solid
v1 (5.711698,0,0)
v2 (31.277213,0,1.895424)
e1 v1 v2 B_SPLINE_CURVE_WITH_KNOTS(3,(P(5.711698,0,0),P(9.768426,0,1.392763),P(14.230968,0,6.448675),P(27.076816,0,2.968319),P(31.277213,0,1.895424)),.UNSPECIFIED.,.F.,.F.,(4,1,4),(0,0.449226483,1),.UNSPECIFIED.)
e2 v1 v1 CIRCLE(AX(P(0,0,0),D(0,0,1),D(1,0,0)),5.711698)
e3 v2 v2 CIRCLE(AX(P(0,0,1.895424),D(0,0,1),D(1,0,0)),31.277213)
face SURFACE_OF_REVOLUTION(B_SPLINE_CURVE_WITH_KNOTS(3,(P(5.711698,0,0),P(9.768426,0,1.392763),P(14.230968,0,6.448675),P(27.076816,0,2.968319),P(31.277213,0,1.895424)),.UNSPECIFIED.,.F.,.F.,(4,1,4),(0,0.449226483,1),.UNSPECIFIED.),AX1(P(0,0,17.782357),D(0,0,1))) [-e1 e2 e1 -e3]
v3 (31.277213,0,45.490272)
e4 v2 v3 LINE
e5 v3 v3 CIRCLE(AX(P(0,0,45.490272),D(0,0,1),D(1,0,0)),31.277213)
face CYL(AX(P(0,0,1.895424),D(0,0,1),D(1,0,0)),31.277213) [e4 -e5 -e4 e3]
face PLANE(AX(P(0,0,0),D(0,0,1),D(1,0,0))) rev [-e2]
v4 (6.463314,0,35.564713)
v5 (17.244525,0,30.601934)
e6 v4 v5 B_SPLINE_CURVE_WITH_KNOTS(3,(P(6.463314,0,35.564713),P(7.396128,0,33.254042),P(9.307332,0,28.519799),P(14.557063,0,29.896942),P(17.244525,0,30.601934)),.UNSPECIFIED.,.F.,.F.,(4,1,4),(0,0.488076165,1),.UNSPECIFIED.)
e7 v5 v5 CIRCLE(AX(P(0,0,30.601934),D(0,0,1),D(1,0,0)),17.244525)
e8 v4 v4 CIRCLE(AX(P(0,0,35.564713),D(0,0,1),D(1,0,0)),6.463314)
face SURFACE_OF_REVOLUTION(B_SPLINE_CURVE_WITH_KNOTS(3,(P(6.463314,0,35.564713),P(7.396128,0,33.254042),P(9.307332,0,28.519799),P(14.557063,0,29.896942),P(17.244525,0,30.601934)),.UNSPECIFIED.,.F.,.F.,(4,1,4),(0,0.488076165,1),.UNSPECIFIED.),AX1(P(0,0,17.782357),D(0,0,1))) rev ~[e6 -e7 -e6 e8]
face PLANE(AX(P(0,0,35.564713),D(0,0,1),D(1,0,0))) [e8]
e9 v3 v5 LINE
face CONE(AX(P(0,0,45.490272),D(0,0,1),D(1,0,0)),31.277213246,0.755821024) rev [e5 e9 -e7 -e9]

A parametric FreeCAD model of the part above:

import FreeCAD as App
import Part
import Sketcher

doc = App.newDocument("Part")
body = doc.addObject("PartDesign::Body", "Body")

# Sketch on XZ plane
sketch1 = doc.addObject("Sketcher::SketchObject", "Sketch")
body.addObject(sketch1)
sketch1.AttachmentSupport = (doc.XZ_Plane, [""])
sketch1.MapMode = "FlatFace"
sketch1.addGeometry([
    Part.LineSegment(App.Vector(0, 35.564713, 0), App.Vector(0, 0, 0)),  # 0
    Part.LineSegment(App.Vector(0, 0, 0), App.Vector(5.711698, 0, 0)),  # 1
    Part.BSplineCurve([App.Vector(5.711698, 0, 0), App.Vector(9.768426, 1.392763, 0), App.Vector(14.230968, 6.448675, 0), App.Vector(27.076816, 2.968319, 0), App.Vector(31.277213, 1.895424, 0)], [4, 1, 4], [0, 0.449226483, 1], False, 3, [1, 1, 1, 1, 1], False),  # 2
    Part.LineSegment(App.Vector(31.277213, 1.895424, 0), App.Vector(31.277213, 45.490272, 0)),  # 3
    Part.LineSegment(App.Vector(31.277213, 45.490272, 0), App.Vector(17.244525, 30.601934, 0)),  # 4
    Part.BSplineCurve([App.Vector(6.463314, 35.564713, 0), App.Vector(7.396128, 33.254042, 0), App.Vector(9.307332, 28.519799, 0), App.Vector(14.557063, 29.896942, 0), App.Vector(17.244525, 30.601934, 0)], [4, 1, 4], [0, 0.488076165, 1], False, 3, [1, 1, 1, 1, 1], False),  # 5
    Part.LineSegment(App.Vector(6.463314, 35.564713, 0), App.Vector(0, 35.564713, 0)),  # 6
], False)
sketch1.addConstraint([
    Sketcher.Constraint("Block", 2),
    Sketcher.Constraint("Block", 5),
    Sketcher.Constraint("Coincident", 0, 2, 1, 1),
    Sketcher.Constraint("Coincident", 1, 2, 2, 1),
    Sketcher.Constraint("Coincident", 2, 2, 3, 1),
    Sketcher.Constraint("Coincident", 3, 2, 4, 1),
    Sketcher.Constraint("Coincident", 4, 2, 5, 2),
    Sketcher.Constraint("Coincident", 5, 1, 6, 1),
    Sketcher.Constraint("Coincident", 6, 2, 0, 1),
    Sketcher.Constraint("Vertical", 0),
    Sketcher.Constraint("Horizontal", 1),
    Sketcher.Constraint("Vertical", 3),
    Sketcher.Constraint("Horizontal", 6),
    Sketcher.Constraint("PointOnObject", 6, 2, -2),
    Sketcher.Constraint("DistanceY", 3, 1, 3, 2, 43.594848),
])
revolution = doc.addObject("PartDesign::Revolution", "Revolution")
body.addObject(revolution)
revolution.Profile = sketch1
revolution.ReferenceAxis = (sketch1, ["V_Axis"])
revolution.Angle = 360

doc.recompute()
